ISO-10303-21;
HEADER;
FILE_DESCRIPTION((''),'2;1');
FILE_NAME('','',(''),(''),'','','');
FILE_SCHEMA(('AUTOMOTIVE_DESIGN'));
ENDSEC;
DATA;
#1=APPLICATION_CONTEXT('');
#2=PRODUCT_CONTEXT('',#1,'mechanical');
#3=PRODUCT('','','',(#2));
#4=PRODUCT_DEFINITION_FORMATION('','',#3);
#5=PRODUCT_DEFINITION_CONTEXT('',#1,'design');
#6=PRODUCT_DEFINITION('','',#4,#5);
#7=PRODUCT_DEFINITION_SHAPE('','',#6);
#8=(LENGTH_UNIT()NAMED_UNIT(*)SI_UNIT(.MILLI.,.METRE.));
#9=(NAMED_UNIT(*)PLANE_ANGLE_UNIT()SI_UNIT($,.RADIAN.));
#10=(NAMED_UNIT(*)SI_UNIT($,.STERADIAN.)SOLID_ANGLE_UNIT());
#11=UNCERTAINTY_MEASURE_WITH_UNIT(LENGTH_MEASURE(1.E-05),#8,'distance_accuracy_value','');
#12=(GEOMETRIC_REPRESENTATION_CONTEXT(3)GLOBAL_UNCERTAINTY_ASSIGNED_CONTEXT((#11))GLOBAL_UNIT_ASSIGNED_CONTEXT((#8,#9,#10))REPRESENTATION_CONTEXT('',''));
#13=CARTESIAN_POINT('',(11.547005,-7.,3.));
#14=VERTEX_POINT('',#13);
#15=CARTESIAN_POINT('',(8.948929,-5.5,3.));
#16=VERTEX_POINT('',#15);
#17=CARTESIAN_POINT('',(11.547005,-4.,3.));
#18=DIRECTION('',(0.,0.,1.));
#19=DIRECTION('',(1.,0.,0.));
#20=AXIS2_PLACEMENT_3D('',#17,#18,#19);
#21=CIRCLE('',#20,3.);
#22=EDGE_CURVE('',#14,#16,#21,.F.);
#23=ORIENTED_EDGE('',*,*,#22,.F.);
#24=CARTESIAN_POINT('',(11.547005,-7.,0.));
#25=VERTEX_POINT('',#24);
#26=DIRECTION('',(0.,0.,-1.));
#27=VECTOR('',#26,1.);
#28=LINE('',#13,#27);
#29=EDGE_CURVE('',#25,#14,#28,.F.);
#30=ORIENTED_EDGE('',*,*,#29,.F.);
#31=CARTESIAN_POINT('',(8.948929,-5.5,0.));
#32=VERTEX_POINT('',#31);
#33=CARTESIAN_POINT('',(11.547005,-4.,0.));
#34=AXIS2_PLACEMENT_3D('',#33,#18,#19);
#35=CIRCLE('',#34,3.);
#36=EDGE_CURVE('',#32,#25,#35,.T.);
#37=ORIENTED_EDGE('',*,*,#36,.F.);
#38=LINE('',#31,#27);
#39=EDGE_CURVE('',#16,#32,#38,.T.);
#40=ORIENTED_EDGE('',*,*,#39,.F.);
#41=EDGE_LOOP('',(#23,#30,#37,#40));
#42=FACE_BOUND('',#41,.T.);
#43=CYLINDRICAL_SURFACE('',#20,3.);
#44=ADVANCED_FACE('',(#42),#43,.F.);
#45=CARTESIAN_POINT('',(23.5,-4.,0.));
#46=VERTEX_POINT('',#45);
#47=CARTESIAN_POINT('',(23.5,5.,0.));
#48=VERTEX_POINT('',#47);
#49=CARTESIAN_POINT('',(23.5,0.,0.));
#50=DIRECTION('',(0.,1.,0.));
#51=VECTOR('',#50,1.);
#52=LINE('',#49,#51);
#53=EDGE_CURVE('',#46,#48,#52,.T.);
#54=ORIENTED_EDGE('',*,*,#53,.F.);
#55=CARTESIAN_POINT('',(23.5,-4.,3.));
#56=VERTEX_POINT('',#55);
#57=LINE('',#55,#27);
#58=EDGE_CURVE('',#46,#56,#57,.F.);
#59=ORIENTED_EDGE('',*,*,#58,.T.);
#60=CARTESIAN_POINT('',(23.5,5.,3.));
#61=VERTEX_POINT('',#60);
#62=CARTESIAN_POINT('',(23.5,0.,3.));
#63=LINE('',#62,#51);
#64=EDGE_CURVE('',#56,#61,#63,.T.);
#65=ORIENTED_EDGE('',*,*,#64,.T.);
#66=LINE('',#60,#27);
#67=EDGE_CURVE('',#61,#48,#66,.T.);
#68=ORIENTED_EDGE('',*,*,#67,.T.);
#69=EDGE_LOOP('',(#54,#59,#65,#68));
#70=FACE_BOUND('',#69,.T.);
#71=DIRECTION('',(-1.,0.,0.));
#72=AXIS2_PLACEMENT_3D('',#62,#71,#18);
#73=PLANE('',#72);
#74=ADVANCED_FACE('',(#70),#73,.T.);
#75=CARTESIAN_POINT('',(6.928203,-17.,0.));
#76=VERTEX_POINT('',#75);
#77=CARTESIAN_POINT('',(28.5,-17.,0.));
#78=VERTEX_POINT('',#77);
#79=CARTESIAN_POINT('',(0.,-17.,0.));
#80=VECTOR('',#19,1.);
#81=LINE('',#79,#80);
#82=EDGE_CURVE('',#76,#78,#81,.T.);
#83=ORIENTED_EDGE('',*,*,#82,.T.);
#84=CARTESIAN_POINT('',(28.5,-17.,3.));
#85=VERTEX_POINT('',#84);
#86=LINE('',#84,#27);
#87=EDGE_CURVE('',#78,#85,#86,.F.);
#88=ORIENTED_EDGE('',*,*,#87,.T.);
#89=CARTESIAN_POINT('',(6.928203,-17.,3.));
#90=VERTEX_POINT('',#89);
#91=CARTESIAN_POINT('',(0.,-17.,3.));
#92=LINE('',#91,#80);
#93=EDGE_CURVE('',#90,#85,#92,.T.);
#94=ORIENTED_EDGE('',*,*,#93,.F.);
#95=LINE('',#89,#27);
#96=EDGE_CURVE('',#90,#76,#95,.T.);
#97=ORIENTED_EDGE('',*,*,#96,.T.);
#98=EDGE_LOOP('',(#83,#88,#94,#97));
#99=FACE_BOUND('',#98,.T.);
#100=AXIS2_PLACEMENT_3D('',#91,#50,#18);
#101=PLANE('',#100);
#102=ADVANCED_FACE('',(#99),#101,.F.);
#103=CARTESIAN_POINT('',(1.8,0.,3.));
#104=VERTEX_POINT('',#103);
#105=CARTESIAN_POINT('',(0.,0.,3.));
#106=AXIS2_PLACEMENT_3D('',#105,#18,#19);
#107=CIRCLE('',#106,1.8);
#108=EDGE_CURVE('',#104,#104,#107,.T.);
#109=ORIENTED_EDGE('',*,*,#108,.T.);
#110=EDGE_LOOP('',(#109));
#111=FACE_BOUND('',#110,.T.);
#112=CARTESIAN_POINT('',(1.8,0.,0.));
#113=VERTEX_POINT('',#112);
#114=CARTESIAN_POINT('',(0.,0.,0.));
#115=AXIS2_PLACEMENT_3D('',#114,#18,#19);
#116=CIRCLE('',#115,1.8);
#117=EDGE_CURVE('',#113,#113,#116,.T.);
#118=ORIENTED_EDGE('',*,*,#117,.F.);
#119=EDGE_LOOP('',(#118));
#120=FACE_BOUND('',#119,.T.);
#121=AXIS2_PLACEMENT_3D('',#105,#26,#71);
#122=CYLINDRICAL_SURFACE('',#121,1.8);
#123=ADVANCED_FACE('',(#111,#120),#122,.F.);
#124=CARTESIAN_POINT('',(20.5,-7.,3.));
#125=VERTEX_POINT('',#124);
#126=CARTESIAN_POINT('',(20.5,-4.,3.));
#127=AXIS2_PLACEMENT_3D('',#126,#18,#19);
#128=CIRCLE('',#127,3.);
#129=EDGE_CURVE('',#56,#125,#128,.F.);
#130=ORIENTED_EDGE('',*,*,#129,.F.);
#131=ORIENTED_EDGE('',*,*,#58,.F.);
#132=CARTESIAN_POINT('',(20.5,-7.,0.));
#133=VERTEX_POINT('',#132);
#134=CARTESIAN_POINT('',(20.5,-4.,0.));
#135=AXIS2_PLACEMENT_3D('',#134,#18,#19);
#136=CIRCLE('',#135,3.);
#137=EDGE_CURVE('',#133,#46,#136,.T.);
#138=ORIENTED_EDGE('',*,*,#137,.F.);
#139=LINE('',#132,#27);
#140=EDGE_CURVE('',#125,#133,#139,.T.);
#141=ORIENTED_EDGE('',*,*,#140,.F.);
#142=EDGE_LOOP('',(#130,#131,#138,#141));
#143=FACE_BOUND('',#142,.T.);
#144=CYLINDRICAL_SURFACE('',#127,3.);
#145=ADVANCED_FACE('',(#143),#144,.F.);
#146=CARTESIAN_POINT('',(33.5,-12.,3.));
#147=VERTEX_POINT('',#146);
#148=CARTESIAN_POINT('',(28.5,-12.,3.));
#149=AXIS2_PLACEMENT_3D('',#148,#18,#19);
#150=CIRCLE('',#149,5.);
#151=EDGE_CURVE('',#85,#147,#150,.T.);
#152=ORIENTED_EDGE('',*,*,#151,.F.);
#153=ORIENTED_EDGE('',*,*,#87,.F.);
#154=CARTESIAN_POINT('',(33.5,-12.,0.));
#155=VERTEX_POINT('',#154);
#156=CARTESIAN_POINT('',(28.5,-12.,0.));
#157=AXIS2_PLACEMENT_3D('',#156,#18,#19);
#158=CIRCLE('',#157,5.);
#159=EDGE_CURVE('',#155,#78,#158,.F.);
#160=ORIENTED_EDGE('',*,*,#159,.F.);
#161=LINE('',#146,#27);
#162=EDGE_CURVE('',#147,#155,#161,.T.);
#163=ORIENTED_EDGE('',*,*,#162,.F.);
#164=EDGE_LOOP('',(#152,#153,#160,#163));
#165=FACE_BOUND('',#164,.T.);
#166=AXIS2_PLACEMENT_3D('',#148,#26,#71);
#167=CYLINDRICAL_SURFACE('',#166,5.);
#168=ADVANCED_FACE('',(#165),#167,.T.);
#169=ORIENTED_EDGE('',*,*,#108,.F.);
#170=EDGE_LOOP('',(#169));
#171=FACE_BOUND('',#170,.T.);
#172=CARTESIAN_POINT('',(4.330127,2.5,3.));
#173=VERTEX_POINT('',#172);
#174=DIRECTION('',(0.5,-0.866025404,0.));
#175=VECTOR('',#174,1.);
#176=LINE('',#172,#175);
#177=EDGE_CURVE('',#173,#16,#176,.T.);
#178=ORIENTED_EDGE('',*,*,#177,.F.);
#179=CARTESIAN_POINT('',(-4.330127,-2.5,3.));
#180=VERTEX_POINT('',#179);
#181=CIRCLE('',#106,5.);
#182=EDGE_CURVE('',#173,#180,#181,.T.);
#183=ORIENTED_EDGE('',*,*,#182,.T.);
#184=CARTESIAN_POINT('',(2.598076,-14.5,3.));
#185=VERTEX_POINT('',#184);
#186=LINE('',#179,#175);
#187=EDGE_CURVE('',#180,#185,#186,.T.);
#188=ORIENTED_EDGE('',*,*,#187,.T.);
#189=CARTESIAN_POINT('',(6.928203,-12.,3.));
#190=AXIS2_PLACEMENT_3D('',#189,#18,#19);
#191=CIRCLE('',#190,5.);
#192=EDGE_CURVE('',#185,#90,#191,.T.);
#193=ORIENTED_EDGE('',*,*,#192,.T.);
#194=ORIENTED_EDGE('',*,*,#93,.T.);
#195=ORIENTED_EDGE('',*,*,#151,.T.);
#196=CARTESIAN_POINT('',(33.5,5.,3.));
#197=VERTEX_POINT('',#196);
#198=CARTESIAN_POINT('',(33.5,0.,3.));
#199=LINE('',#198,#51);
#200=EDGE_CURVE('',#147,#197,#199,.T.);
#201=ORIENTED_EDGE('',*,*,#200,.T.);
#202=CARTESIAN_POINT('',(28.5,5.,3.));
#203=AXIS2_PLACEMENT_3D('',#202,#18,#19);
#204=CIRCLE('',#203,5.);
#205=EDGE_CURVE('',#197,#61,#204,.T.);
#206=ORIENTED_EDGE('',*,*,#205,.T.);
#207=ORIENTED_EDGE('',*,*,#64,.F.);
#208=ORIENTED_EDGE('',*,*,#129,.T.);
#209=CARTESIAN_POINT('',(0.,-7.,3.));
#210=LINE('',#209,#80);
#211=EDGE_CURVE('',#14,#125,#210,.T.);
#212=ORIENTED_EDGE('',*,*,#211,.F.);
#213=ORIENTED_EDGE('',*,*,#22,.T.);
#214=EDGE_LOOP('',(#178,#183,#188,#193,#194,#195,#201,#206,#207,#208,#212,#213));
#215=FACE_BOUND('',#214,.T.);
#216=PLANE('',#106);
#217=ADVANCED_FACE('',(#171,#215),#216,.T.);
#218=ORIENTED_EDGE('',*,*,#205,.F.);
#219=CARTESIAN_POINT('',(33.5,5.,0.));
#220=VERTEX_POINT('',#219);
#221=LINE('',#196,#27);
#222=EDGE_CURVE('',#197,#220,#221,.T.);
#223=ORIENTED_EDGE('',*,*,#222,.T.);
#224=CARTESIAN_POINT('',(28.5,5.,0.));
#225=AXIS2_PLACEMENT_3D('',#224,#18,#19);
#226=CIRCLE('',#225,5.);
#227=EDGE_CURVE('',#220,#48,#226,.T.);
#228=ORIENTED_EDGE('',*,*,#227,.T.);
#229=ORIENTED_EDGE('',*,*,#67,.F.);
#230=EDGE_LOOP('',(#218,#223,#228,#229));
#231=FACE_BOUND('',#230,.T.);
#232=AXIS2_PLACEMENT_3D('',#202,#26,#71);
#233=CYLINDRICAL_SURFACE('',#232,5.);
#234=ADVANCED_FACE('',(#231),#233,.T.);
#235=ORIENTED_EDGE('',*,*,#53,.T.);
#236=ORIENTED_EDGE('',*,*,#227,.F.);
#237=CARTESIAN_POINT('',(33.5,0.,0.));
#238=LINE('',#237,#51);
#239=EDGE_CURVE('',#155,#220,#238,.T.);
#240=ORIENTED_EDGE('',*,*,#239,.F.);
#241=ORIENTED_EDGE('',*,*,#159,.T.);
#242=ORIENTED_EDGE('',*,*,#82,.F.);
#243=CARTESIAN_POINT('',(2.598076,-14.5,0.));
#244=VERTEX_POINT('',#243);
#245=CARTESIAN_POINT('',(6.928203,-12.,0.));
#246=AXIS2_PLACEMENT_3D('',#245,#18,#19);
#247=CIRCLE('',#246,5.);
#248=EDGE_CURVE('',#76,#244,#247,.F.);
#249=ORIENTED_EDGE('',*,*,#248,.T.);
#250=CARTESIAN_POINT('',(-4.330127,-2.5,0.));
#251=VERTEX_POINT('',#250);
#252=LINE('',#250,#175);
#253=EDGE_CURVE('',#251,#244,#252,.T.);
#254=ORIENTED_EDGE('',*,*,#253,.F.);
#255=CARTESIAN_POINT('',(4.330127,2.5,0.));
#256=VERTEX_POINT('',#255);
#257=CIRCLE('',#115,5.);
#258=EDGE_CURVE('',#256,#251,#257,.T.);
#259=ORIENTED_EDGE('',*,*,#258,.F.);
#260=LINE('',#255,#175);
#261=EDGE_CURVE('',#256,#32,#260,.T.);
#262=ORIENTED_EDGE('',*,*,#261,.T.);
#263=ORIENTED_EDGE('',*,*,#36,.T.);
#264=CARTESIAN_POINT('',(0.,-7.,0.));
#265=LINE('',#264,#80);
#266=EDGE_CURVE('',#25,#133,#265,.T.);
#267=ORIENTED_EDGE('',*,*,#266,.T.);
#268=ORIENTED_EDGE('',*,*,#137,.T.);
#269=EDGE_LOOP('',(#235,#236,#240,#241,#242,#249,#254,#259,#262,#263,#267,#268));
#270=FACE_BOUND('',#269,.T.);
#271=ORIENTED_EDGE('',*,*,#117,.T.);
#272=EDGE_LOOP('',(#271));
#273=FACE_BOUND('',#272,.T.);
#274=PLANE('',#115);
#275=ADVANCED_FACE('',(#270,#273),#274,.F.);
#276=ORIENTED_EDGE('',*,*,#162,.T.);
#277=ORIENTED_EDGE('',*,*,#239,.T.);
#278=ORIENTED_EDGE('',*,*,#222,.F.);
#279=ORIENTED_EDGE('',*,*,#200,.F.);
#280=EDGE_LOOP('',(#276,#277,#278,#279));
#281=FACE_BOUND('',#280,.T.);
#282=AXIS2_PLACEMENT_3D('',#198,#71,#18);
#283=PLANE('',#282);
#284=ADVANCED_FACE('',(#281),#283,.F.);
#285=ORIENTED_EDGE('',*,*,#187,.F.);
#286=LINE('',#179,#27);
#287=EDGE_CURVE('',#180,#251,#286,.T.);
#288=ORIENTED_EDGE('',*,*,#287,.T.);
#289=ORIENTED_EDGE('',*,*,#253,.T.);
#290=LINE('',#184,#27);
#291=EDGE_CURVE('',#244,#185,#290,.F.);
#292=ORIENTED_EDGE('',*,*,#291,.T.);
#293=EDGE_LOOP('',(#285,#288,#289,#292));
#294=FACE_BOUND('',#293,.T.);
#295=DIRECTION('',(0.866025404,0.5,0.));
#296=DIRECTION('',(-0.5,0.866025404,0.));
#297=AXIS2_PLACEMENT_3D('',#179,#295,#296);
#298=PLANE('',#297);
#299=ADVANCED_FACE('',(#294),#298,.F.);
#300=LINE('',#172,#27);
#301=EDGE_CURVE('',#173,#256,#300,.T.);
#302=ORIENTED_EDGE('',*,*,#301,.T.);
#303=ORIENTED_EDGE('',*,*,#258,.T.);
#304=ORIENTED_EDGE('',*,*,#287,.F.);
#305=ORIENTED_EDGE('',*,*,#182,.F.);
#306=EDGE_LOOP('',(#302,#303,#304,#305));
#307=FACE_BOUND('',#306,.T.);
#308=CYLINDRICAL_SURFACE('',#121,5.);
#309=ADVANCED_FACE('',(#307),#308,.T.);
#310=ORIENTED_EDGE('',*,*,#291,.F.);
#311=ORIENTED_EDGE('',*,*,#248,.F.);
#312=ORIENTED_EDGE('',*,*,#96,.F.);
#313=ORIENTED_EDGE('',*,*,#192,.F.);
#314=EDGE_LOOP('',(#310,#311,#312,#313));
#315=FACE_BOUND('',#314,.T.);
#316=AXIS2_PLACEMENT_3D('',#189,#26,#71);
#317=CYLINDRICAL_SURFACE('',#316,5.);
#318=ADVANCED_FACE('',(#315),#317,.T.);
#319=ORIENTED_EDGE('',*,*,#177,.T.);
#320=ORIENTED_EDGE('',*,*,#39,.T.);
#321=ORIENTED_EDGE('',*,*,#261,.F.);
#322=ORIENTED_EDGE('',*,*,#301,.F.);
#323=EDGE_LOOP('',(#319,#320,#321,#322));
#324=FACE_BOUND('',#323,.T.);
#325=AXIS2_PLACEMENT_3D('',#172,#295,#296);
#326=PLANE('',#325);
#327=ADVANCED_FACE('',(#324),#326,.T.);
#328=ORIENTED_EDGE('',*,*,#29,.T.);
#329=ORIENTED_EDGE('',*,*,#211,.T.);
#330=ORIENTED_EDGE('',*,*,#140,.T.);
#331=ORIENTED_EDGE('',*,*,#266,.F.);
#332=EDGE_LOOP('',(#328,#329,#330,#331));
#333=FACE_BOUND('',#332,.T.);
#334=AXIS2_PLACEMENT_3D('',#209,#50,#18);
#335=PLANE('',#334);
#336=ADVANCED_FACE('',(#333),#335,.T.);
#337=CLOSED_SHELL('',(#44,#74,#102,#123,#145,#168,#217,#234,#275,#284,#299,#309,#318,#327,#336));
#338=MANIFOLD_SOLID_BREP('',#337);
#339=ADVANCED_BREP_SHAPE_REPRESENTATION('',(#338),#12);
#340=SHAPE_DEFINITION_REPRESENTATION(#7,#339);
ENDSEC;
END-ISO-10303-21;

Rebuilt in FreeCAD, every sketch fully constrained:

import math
import FreeCAD as App
import Part
import Sketcher
from FreeCAD import Vector
Q = App.Units.Quantity


def edges_at(feature, points):
    """Names of the edges that pass closest to the given points."""
    edges = feature.Shape.Edges
    near = lambda p: min(range(len(edges)), key=lambda i: edges[i].distToShape(Part.Vertex(*p))[0])
    return sorted({f"Edge{near(p) + 1}" for p in points})

doc = App.newDocument("Part")
body = doc.addObject("PartDesign::Body", "Body")

sketch1 = doc.addObject("Sketcher::SketchObject", "Sketch")
body.addObject(sketch1)
sketch1.AttachmentSupport = (doc.XY_Plane, [""])
sketch1.MapMode = "FlatFace"
sketch1.addGeometry([
    Part.LineSegment(Vector(9.814955, -7, 0), Vector(4.330127, 2.5, 0)),
    Part.ArcOfCircle(Part.Circle(Vector(0, 0, 0), Vector(0, 0, 1), 5), math.radians(30), math.radians(210)),
    Part.LineSegment(Vector(-4.330127, -2.5, 0), Vector(4.041452, -17, 0)),
    Part.LineSegment(Vector(4.041452, -17, 0), Vector(33.5, -17, 0)),
    Part.LineSegment(Vector(33.5, -17, 0), Vector(33.5, 5, 0)),
    Part.ArcOfCircle(Part.Circle(Vector(28.5, 5, 0), Vector(0, 0, 1), 5), math.radians(0), math.radians(180)),
    Part.LineSegment(Vector(23.5, 5, 0), Vector(23.5, -7, 0)),
    Part.LineSegment(Vector(23.5, -7, 0), Vector(9.814955, -7, 0)),
    Part.Circle(Vector(0, 0, 0), Vector(0, 0, 1), 1.8),
], False)
sketch1.addConstraint([
    Sketcher.Constraint("Tangent", 0, 2, 1, 1),
    Sketcher.Constraint("Tangent", 1, 2, 2, 1),
    Sketcher.Constraint("Coincident", 2, 2, 3, 1),
    Sketcher.Constraint("Coincident", 3, 2, 4, 1),
    Sketcher.Constraint("Tangent", 4, 2, 5, 1),
    Sketcher.Constraint("Tangent", 5, 2, 6, 1),
    Sketcher.Constraint("Coincident", 6, 2, 7, 1),
    Sketcher.Constraint("Coincident", 7, 2, 0, 1),
    Sketcher.Constraint("Horizontal", 3),
    Sketcher.Constraint("Vertical", 4),
    Sketcher.Constraint("Vertical", 6),
    Sketcher.Constraint("Horizontal", 7),
    Sketcher.Constraint("Coincident", 1, 3, -1, 1),
    Sketcher.Constraint("Coincident", 8, 3, -1, 1),
    Sketcher.Constraint("Equal", 1, 5),
    Sketcher.Constraint("Parallel", 0, 2),
    Sketcher.Constraint("Radius", 1, Q("5 mm")),
    Sketcher.Constraint("Diameter", 8, Q("3.6 mm")),
    Sketcher.Constraint("DistanceY", 4, 1, 4, 2, Q("22 mm")),
    Sketcher.Constraint("DistanceY", 6, 2, 6, 1, Q("12 mm")),
    Sketcher.Constraint("Angle", 0, Q("120 deg")),
    Sketcher.Constraint("DistanceY", -1, 1, 5, 3, Q("5 mm")),
    Sketcher.Constraint("DistanceX", -1, 1, 5, 3, Q("28.5 mm")),
])
pad1 = doc.addObject("PartDesign::Pad", "Pad")
body.addObject(pad1)
pad1.Profile = sketch1
pad1.Length = 3
doc.recompute()

fillet = doc.addObject("PartDesign::Fillet", "Fillet")
body.addObject(fillet)
fillet.Base = (pad1, edges_at(pad1, [(33.5, -17, 1.5), (4.041, -17, 1.5)]))
fillet.Radius = 5
doc.recompute()

fillet2 = doc.addObject("PartDesign::Fillet", "Fillet001")
body.addObject(fillet2)
fillet2.Base = (fillet, edges_at(fillet, [(9.815, -7, 1.5), (23.5, -7, 1.5)]))
fillet2.Radius = 3

doc.recompute()
